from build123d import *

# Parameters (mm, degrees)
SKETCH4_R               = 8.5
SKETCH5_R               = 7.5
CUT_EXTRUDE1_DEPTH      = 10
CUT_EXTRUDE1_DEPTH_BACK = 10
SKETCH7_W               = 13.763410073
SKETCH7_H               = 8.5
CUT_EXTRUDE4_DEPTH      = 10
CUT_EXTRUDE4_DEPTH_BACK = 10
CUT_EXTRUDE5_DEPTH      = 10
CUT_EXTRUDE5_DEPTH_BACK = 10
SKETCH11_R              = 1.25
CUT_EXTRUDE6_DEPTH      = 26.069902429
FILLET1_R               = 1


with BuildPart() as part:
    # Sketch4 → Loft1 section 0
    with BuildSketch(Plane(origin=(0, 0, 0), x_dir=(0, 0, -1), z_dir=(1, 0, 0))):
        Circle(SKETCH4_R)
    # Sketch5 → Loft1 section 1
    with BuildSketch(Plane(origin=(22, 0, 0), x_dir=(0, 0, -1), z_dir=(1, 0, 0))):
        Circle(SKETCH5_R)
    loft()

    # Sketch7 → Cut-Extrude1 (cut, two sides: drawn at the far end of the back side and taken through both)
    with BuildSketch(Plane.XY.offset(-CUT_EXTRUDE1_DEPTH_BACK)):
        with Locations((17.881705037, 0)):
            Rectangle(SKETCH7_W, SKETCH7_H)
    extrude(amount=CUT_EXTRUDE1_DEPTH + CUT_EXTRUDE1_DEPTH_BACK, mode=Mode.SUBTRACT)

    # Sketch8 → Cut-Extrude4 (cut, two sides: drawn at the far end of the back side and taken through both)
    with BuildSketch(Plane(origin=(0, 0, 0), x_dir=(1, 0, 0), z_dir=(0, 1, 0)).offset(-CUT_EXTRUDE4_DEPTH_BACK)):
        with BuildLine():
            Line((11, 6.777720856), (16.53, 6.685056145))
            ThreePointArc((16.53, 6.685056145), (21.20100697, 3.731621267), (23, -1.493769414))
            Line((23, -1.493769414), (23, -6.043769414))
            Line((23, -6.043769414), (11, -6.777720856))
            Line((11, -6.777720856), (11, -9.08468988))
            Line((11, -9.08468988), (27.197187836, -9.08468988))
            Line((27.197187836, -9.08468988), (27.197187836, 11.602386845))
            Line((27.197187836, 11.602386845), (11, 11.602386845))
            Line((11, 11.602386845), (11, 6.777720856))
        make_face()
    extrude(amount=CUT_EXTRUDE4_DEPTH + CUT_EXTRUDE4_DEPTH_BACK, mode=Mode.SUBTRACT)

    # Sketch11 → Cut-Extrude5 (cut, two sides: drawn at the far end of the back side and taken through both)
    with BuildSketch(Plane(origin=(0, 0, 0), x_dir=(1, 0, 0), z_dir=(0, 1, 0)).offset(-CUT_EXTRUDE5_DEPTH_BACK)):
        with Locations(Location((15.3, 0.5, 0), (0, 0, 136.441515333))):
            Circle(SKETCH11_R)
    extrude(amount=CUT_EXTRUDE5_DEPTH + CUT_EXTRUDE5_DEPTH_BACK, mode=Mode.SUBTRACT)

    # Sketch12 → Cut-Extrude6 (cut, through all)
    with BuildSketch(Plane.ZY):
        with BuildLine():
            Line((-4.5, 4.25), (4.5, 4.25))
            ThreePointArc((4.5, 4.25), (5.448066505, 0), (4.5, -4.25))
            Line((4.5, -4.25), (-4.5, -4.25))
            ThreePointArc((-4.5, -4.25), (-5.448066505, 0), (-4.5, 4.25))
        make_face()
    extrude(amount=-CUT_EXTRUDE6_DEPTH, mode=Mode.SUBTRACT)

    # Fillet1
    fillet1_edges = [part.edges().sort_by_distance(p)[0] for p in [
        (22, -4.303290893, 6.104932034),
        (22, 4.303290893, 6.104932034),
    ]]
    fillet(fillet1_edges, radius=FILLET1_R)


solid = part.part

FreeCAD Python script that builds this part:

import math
import FreeCAD as App
import Part
import Sketcher
Q = App.Units.Quantity


def edges_at(feature, points):
    """Names of the edges that pass closest to the given points."""
    edges = feature.Shape.Edges
    near = lambda p: min(range(len(edges)), key=lambda i: edges[i].distToShape(Part.Vertex(*p))[0])
    return sorted({f"Edge{near(p) + 1}" for p in points})

doc = App.newDocument("Part")
body = doc.addObject("PartDesign::Body", "Body")

sketch1 = body.newObject("Sketcher::SketchObject", "Sketch")
sketch1.AttachmentSupport = (doc.getObject("YZ_Plane"), [""])
sketch1.MapMode = "FlatFace"
sketch1.addGeometry(Part.Circle(App.Vector(0, 0, 0), App.Vector(0, 0, 1), 8), False)
sketch1.addConstraint([
    Sketcher.Constraint("Coincident", 0, 3, -1, 1),
    Sketcher.Constraint("Diameter", 0, Q("17 mm")),
])

sketch2 = body.newObject("Sketcher::SketchObject", "Sketch001")
sketch2.AttachmentSupport = (doc.getObject("YZ_Plane"), [""])
sketch2.MapMode = "FlatFace"
sketch2.AttachmentOffset = App.Placement(App.Vector(0, 0, 22), App.Rotation())
sketch2.addGeometry(Part.Circle(App.Vector(0, 0, 0), App.Vector(0, 0, 1), 8), False)
sketch2.addConstraint([
    Sketcher.Constraint("Coincident", 0, 3, -1, 1),
    Sketcher.Constraint("Diameter", 0, Q("15 mm")),
])

additiveloft = body.newObject("PartDesign::AdditiveLoft", "AdditiveLoft")
additiveloft.Profile = sketch1
additiveloft.Sections = [sketch2]

sketch3 = body.newObject("Sketcher::SketchObject", "Sketch002")
sketch3.AttachmentSupport = (doc.getObject("XY_Plane"), [""])
sketch3.MapMode = "FlatFace"
sketch3.addGeometry([
    Part.LineSegment(App.Vector(11, 4, 0), App.Vector(11, -4, 0)),
    Part.LineSegment(App.Vector(11, -4, 0), App.Vector(25, -4, 0)),
    Part.LineSegment(App.Vector(25, -4, 0), App.Vector(25, 4, 0)),
    Part.LineSegment(App.Vector(25, 4, 0), App.Vector(11, 4, 0)),
], False)
sketch3.addConstraint([
    Sketcher.Constraint("Coincident", 0, 2, 1, 1),
    Sketcher.Constraint("Coincident", 1, 2, 2, 1),
    Sketcher.Constraint("Coincident", 2, 2, 3, 1),
    Sketcher.Constraint("Coincident", 3, 2, 0, 1),
    Sketcher.Constraint("Vertical", 0),
    Sketcher.Constraint("Horizontal", 1),
    Sketcher.Constraint("Vertical", 2),
    Sketcher.Constraint("Horizontal", 3),
    Sketcher.Constraint("DistanceY", 0, 2, 0, 1, Q("8.5 mm")),
    Sketcher.Constraint("DistanceX", -1, 1, 0, 2, Q("11 mm")),
    Sketcher.Constraint("DistanceY", 0, 2, -1, 1, Q("4.25 mm")),
    Sketcher.Constraint("DistanceX", 1, 1, 1, 2, Q("13.76341 mm")),
])
pocket1 = body.newObject("PartDesign::Pocket", "Pocket")
pocket1.Profile = sketch3
pocket1.Type = "ThroughAll"
pocket1.Midplane = True

sketch4 = body.newObject("Sketcher::SketchObject", "Sketch003")
sketch4.AttachmentSupport = (doc.getObject("XZ_Plane"), [""])
sketch4.MapMode = "FlatFace"
sketch4.addGeometry([
    Part.LineSegment(App.Vector(11, -6.8, 0), App.Vector(16.5, -6.7, 0)),
    Part.ArcOfCircle(Part.Circle(App.Vector(14.7, 1.4, 0), App.Vector(0, 0, 1), 8.3), math.radians(-77), math.radians(0)),
    Part.LineSegment(App.Vector(23, 1.5, 0), App.Vector(23, 6, 0)),
    Part.LineSegment(App.Vector(23, 6, 0), App.Vector(11, 6.8, 0)),
    Part.LineSegment(App.Vector(11, 6.8, 0), App.Vector(11, 9.1, 0)),
    Part.LineSegment(App.Vector(11, 9.1, 0), App.Vector(27.2, 9.1, 0)),
    Part.LineSegment(App.Vector(27.2, 9.1, 0), App.Vector(27.2, -11.6, 0)),
    Part.LineSegment(App.Vector(27.2, -11.6, 0), App.Vector(11, -11.6, 0)),
    Part.LineSegment(App.Vector(11, -11.6, 0), App.Vector(11, -6.8, 0)),
], False)
sketch4.addConstraint([
    Sketcher.Constraint("Coincident", 0, 2, 1, 1),
    Sketcher.Constraint("Coincident", 1, 2, 2, 1),
    Sketcher.Constraint("Coincident", 2, 2, 3, 1),
    Sketcher.Constraint("Coincident", 3, 2, 4, 1),
    Sketcher.Constraint("Coincident", 4, 2, 5, 1),
    Sketcher.Constraint("Coincident", 5, 2, 6, 1),
    Sketcher.Constraint("Coincident", 6, 2, 7, 1),
    Sketcher.Constraint("Coincident", 7, 2, 8, 1),
    Sketcher.Constraint("Coincident", 8, 2, 0, 1),
    Sketcher.Constraint("Vertical", 2),
    Sketcher.Constraint("Vertical", 4),
    Sketcher.Constraint("Horizontal", 5),
    Sketcher.Constraint("Vertical", 6),
    Sketcher.Constraint("Horizontal", 7),
    Sketcher.Constraint("Vertical", 8),
    Sketcher.Constraint("Symmetric", 3, 2, 8, 2, -1),
    Sketcher.Constraint("Radius", 1, Q("8.34 mm")),
    Sketcher.Constraint("DistanceX", -1, 1, 1, 2, Q("23 mm")),
    Sketcher.Constraint("DistanceX", -1, 1, 3, 2, Q("11 mm")),
    Sketcher.Constraint("Angle", 3, Q("176.5 deg")),
    Sketcher.Constraint("DistanceY", 2, 1, 2, 2, Q("4.55 mm")),
    Sketcher.Constraint("Angle", 0, Q("0.96 deg")),
    Sketcher.Constraint("DistanceX", -1, 1, 0, 2, Q("16.53 mm")),
    Sketcher.Constraint("DistanceY", 4, 1, 4, 2, Q("2.306969 mm")),
    Sketcher.Constraint("DistanceX", 5, 1, 5, 2, Q("16.197188 mm")),
    Sketcher.Constraint("DistanceY", 6, 2, 6, 1, Q("20.687077 mm")),
    Sketcher.Constraint("DistanceY", 8, 1, 8, 2, Q("4.824666 mm")),
])
pocket2 = body.newObject("PartDesign::Pocket", "Pocket001")
pocket2.Profile = sketch4
pocket2.Type = "ThroughAll"
pocket2.Midplane = True

sketch5 = body.newObject("Sketcher::SketchObject", "Sketch004")
sketch5.AttachmentSupport = (doc.getObject("XZ_Plane"), [""])
sketch5.MapMode = "FlatFace"
sketch5.addGeometry(Part.Circle(App.Vector(15.3, -0.5, 0), App.Vector(0, 0, 1), 1.2), False)
sketch5.addConstraint([
    Sketcher.Constraint("Diameter", 0, Q("2.5 mm")),
    Sketcher.Constraint("DistanceX", -1, 1, 0, 3, Q("15.3 mm")),
    Sketcher.Constraint("DistanceY", 0, 3, -1, 1, Q("0.5 mm")),
])
pocket3 = body.newObject("PartDesign::Pocket", "Pocket002")
pocket3.Profile = sketch5
pocket3.Type = "ThroughAll"
pocket3.Midplane = True

sketch6 = body.newObject("Sketcher::SketchObject", "Sketch005")
sketch6.AttachmentSupport = (doc.getObject("YZ_Plane"), [""])
sketch6.MapMode = "FlatFace"
sketch6.addGeometry([
    Part.LineSegment(App.Vector(4, 4, 0), App.Vector(4, -4, 0)),
    Part.ArcOfCircle(Part.Circle(App.Vector(0, 5, 0), App.Vector(0, 0, 1), 10), math.radians(-115), math.radians(-65)),
    Part.LineSegment(App.Vector(-4, -4, 0), App.Vector(-4, 4, 0)),
    Part.ArcOfCircle(Part.Circle(App.Vector(0, -5, 0), App.Vector(0, 0, 1), 10), math.radians(65), math.radians(115)),
], False)
sketch6.addConstraint([
    Sketcher.Constraint("Coincident", 0, 2, 1, 2),
    Sketcher.Constraint("Coincident", 1, 1, 2, 1),
    Sketcher.Constraint("Coincident", 2, 2, 3, 2),
    Sketcher.Constraint("Coincident", 3, 1, 0, 1),
    Sketcher.Constraint("Vertical", 0),
    Sketcher.Constraint("Vertical", 2),
    Sketcher.Constraint("Equal", 1, 3),
    Sketcher.Constraint("Symmetric", 1, 3, 3, 3, -1, 1),
    Sketcher.Constraint("Symmetric", 0, 2, 1, 1, -2),
    Sketcher.Constraint("Radius", 1, Q("10 mm")),
    Sketcher.Constraint("DistanceY", 0, 2, 0, 1, Q("9 mm")),
    Sketcher.Constraint("DistanceX", 1, 1, 0, 2, Q("8.5 mm")),
])
pocket4 = body.newObject("PartDesign::Pocket", "Pocket003")
pocket4.Profile = sketch6
pocket4.Type = "ThroughAll"
pocket4.Reversed = True
doc.recompute()

fillet = body.newObject("PartDesign::Fillet", "Fillet")
fillet.Base = (pocket4, edges_at(pocket4, [(22, -4.303, 6.105), (22, 4.303, 6.105)]))
fillet.Radius = 1

doc.recompute()
